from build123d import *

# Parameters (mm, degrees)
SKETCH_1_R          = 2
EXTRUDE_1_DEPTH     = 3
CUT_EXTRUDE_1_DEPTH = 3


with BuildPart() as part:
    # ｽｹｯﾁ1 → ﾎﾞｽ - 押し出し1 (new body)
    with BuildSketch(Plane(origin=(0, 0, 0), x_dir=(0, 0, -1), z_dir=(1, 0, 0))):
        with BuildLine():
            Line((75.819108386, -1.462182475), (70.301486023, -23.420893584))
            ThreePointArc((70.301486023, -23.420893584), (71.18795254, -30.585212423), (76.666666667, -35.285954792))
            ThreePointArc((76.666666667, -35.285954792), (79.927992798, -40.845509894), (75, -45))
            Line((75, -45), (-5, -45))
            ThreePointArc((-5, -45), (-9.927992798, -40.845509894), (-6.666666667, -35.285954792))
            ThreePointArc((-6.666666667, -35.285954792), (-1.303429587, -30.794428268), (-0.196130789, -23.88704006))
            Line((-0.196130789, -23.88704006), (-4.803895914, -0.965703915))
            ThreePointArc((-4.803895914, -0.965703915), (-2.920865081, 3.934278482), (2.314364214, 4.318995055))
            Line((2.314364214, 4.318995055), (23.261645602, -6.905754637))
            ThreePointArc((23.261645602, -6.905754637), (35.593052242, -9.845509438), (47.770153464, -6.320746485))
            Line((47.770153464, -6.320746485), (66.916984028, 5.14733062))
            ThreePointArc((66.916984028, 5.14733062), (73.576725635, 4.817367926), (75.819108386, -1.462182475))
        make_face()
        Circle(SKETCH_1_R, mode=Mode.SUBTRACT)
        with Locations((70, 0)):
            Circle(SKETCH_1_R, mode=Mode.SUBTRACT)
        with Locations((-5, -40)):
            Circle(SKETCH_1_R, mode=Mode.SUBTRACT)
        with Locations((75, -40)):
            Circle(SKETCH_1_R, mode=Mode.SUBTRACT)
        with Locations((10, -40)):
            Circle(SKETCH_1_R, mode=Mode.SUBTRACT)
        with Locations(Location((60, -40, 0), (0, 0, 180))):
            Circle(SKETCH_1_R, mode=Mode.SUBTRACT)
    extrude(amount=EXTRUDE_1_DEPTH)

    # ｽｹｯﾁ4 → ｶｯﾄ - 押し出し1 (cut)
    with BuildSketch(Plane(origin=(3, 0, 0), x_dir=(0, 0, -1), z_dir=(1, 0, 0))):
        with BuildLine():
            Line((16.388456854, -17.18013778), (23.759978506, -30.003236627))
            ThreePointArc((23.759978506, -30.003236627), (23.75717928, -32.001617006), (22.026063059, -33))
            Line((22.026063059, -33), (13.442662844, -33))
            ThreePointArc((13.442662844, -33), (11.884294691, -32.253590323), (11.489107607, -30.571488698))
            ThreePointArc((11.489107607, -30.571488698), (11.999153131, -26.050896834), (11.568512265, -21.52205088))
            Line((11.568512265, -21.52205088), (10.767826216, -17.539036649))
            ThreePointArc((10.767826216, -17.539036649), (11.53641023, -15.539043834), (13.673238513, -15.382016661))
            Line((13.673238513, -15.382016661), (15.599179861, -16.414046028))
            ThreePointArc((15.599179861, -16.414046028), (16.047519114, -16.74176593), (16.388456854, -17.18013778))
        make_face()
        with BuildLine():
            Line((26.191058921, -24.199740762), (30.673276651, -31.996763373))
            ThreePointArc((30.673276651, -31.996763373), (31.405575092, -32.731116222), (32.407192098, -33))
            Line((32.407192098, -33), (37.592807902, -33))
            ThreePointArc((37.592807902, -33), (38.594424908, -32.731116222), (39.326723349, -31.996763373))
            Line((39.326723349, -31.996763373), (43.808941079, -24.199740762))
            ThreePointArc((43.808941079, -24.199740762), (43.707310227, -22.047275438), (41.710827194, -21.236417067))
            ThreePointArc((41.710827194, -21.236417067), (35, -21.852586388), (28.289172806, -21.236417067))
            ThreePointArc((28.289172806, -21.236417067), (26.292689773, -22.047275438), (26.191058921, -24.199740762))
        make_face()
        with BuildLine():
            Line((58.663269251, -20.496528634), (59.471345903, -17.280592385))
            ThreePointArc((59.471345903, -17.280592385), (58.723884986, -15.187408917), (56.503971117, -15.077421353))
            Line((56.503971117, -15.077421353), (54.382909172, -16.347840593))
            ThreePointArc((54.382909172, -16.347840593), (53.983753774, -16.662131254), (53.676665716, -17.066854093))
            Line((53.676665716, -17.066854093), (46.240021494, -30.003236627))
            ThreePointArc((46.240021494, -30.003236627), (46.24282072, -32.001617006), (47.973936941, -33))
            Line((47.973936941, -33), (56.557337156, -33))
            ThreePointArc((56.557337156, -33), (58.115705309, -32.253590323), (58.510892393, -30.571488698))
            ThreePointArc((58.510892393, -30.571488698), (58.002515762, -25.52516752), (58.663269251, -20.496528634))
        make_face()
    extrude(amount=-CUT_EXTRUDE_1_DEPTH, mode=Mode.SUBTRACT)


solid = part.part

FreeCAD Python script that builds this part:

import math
import FreeCAD as App
import Part
import Sketcher
from FreeCAD import Vector
Q = App.Units.Quantity

doc = App.newDocument("Part")
body = doc.addObject("PartDesign::Body", "Body")

# Sketch on YZ plane
sketch1 = body.newObject("Sketcher::SketchObject", "Sketch")
sketch1.AttachmentSupport = (doc.getObject("YZ_Plane"), [""])
sketch1.MapMode = "FlatFace"
sketch1.addGeometry(Part.LineSegment(Vector(-23.420894, -70.301486, 0), Vector(-1.462182, -75.819108, 0)), False)
sketch1.addGeometry(Part.ArcOfCircle(Part.Circle(Vector(0, -70, 0), Vector(0, 0, 1), 6), math.radians(-104.104848), math.radians(30.919683)), False)
sketch1.addGeometry(Part.LineSegment(Vector(5.147331, -66.916984, 0), Vector(-6.320746, -47.770153, 0)), False)
sketch1.addGeometry(Part.ArcOfCircle(Part.Circle(Vector(15, -35, 0), Vector(0, 0, 1), 24.852586), math.radians(151.815052), math.radians(210.919683)), False)
sketch1.addGeometry(Part.LineSegment(Vector(-6.905755, -23.261646, 0), Vector(4.318995, -2.314364, 0)), False)
sketch1.addGeometry(Part.ArcOfCircle(Part.Circle(Vector(0, 0, 0), Vector(0, 0, 1), 4.9), math.radians(-28.184948), math.radians(101.366399)), False)
sketch1.addGeometry(Part.LineSegment(Vector(-0.965704, 4.803896, 0), Vector(-23.88704, 0.196131, 0)), False)
sketch1.addGeometry(Part.ArcOfCircle(Part.Circle(Vector(-25.857864, 10, 0), Vector(0, 0, 1), 10), math.radians(-160.528779), math.radians(-78.633601)), False)
sketch1.addGeometry(Part.ArcOfCircle(Part.Circle(Vector(-40, 5, 0), Vector(0, 0, 1), 5), math.radians(19.471221), math.radians(180)), False)
sketch1.addGeometry(Part.LineSegment(Vector(-45, 5, 0), Vector(-45, -75, 0)), False)
sketch1.addGeometry(Part.ArcOfCircle(Part.Circle(Vector(-40, -75, 0), Vector(0, 0, 1), 5), math.radians(180), math.radians(340.528779)), False)
sketch1.addGeometry(Part.ArcOfCircle(Part.Circle(Vector(-25.857864, -80, 0), Vector(0, 0, 1), 10), math.radians(75.895152), math.radians(160.528779)), False)
sketch1.addGeometry(Part.Circle(Vector(-40, -75, 0), Vector(0, 0, 1), 2), False)
sketch1.addGeometry(Part.Circle(Vector(-40, -60, 0), Vector(0, 0, 1), 2), False)
sketch1.addGeometry(Part.Circle(Vector(-40, -10, 0), Vector(0, 0, 1), 2), False)
sketch1.addGeometry(Part.Circle(Vector(-40, 5, 0), Vector(0, 0, 1), 2), False)
sketch1.addGeometry(Part.Circle(Vector(0, -70, 0), Vector(0, 0, 1), 2), False)
sketch1.addGeometry(Part.Circle(Vector(0, 0, 0), Vector(0, 0, 1), 2), False)
sketch1.addConstraint(Sketcher.Constraint("Tangent", 0, 2, 1, 1))
sketch1.addConstraint(Sketcher.Constraint("Tangent", 1, 2, 2, 1))
sketch1.addConstraint(Sketcher.Constraint("Tangent", 2, 2, 3, 2))
sketch1.addConstraint(Sketcher.Constraint("Tangent", 3, 1, 4, 1))
sketch1.addConstraint(Sketcher.Constraint("Tangent", 4, 2, 5, 1))
sketch1.addConstraint(Sketcher.Constraint("Tangent", 5, 2, 6, 1))
sketch1.addConstraint(Sketcher.Constraint("Tangent", 6, 2, 7, 2))
sketch1.addConstraint(Sketcher.Constraint("Tangent", 7, 1, 8, 1))
sketch1.addConstraint(Sketcher.Constraint("Tangent", 8, 2, 9, 1))
sketch1.addConstraint(Sketcher.Constraint("Tangent", 9, 2, 10, 1))
sketch1.addConstraint(Sketcher.Constraint("Tangent", 10, 2, 11, 2))
sketch1.addConstraint(Sketcher.Constraint("Tangent", 11, 1, 0, 1))
sketch1.addConstraint(Sketcher.Constraint("Vertical", 9))
sketch1.addConstraint(Sketcher.Constraint("Coincident", 5, 3, -1, 1))
sketch1.addConstraint(Sketcher.Constraint("Coincident", 17, 3, -1, 1))
sketch1.addConstraint(Sketcher.Constraint("Coincident", 12, 3, 10, 3))
sketch1.addConstraint(Sketcher.Constraint("Coincident", 15, 3, 8, 3))
sketch1.addConstraint(Sketcher.Constraint("Coincident", 16, 3, 1, 3))
sketch1.addConstraint(Sketcher.Constraint("Equal", 8, 10))
sketch1.addConstraint(Sketcher.Constraint("Equal", 7, 11))
sketch1.addConstraint(Sketcher.Constraint("Equal", 12, 13))
sketch1.addConstraint(Sketcher.Constraint("Equal", 13, 14))
sketch1.addConstraint(Sketcher.Constraint("Equal", 14, 15))
sketch1.addConstraint(Sketcher.Constraint("Equal", 15, 16))
sketch1.addConstraint(Sketcher.Constraint("Equal", 16, 17))
sketch1.addConstraint(Sketcher.Constraint("PointOnObject", 1, 3, -2))
sketch1.addConstraint(Sketcher.Constraint("Vertical", 7, 3, 11, 3))
sketch1.addConstraint(Sketcher.Constraint("Vertical", 12, 3, 13, 3))
sketch1.addConstraint(Sketcher.Constraint("Vertical", 13, 3, 14, 3))
sketch1.addConstraint(Sketcher.Constraint("Diameter", 12, Q("4 mm")))
sketch1.addConstraint(Sketcher.Constraint("Radius", 1, Q("6 mm")))
sketch1.addConstraint(Sketcher.Constraint("Radius", 7, Q("10 mm")))
sketch1.addConstraint(Sketcher.Constraint("Radius", 8, Q("5 mm")))
sketch1.addConstraint(Sketcher.Constraint("Radius", 5, Q("4.9 mm")))
sketch1.addConstraint(Sketcher.Constraint("DistanceY", 9, 2, 9, 1, Q("80 mm")))
sketch1.addConstraint(Sketcher.Constraint("DistanceY", 1, 3, -1, 1, Q("70 mm")))
sketch1.addConstraint(Sketcher.Constraint("DistanceX", -1, 1, 3, 3, Q("15 mm")))
sketch1.addConstraint(Sketcher.Constraint("DistanceY", 3, 3, -1, 1, Q("35 mm")))
sketch1.addConstraint(Sketcher.Constraint("DistanceY", -1, 1, 7, 3, Q("10 mm")))
sketch1.addConstraint(Sketcher.Constraint("DistanceX", 8, 3, -1, 1, Q("40 mm")))
sketch1.addConstraint(Sketcher.Constraint("DistanceY", -1, 1, 8, 3, Q("5 mm")))
sketch1.addConstraint(Sketcher.Constraint("DistanceY", 13, 3, -1, 1, Q("60 mm")))
sketch1.addConstraint(Sketcher.Constraint("DistanceY", 14, 3, -1, 1, Q("10 mm")))
sketch1.addConstraint(Sketcher.Constraint("Radius", 3, Q("24.852586 mm")))
pad1 = body.newObject("PartDesign::Pad", "Pad")
pad1.Profile = sketch1
pad1.Length = 3

# Sketch on YZ plane
sketch2 = body.newObject("Sketcher::SketchObject", "Sketch001")
sketch2.AttachmentSupport = (doc.getObject("YZ_Plane"), [""])
sketch2.MapMode = "FlatFace"
sketch2.AttachmentOffset = App.Placement(Vector(0, 0, 3), App.Rotation())
sketch2.addGeometry(Part.LineSegment(Vector(-30.003237, -23.759979, 0), Vector(-17.180138, -16.388457, 0)), False)
sketch2.addGeometry(Part.ArcOfCircle(Part.Circle(Vector(-18.176901, -14.654541, 0), Vector(0, 0, 1), 2), math.radians(-60.107009), math.radians(-28.184948)), False)
sketch2.addGeometry(Part.LineSegment(Vector(-16.414046, -15.59918, 0), Vector(-15.382017, -13.673239, 0)), False)
sketch2.addGeometry(Part.ArcOfCircle(Part.Circle(Vector(-17.144872, -12.7286, 0), Vector(0, 0, 1), 2), math.radians(-28.184948), math.radians(101.366399)), False)
sketch2.addGeometry(Part.LineSegment(Vector(-17.539037, -10.767826, 0), Vector(-21.522051, -11.568512, 0)), False)
sketch2.addGeometry(Part.ArcOfCircle(Part.Circle(Vector(-25.857864, 10, 0), Vector(0, 0, 1), 22), math.radians(-102.371862), math.radians(-78.633601)), False)
sketch2.addGeometry(Part.ArcOfCircle(Part.Circle(Vector(-31, -13.442663, 0), Vector(0, 0, 1), 2), math.radians(77.628138), math.radians(180)), False)
sketch2.addGeometry(Part.LineSegment(Vector(-33, -13.442663, 0), Vector(-33, -22.026063, 0)), False)
sketch2.addGeometry(Part.ArcOfCircle(Part.Circle(Vector(-31, -22.026063, 0), Vector(0, 0, 1), 2), math.radians(-180), math.radians(-60.107009)), False)
sketch2.addGeometry(Part.LineSegment(Vector(-24.199741, -26.191059, 0), Vector(-31.996763, -30.673277, 0)), False)
sketch2.addGeometry(Part.ArcOfCircle(Part.Circle(Vector(-31, -32.407192, 0), Vector(0, 0, 1), 2), math.radians(119.892991), math.radians(180)), False)
sketch2.addGeometry(Part.LineSegment(Vector(-33, -32.407192, 0), Vector(-33, -37.592808, 0)), False)
sketch2.addGeometry(Part.ArcOfCircle(Part.Circle(Vector(-31, -37.592808, 0), Vector(0, 0, 1), 2), math.radians(180), math.radians(240.107009)), False)
sketch2.addGeometry(Part.LineSegment(Vector(-31.996763, -39.326723, 0), Vector(-24.199741, -43.808941, 0)), False)
sketch2.addGeometry(Part.ArcOfCircle(Part.Circle(Vector(-23.202977, -42.075026, 0), Vector(0, 0, 1), 2), math.radians(-119.892991), math.radians(10.492057)), False)
sketch2.addGeometry(Part.ArcOfCircle(Part.Circle(Vector(15, -35, 0), Vector(0, 0, 1), 36.852586), math.radians(169.507943), math.radians(190.492057)), False)
sketch2.addGeometry(Part.ArcOfCircle(Part.Circle(Vector(-23.202977, -27.924974, 0), Vector(0, 0, 1), 2), math.radians(-10.492057), math.radians(119.892991)), False)
sketch2.addGeometry(Part.LineSegment(Vector(-20.496529, -58.663269, 0), Vector(-17.280592, -59.471346, 0)), False)
sketch2.addGeometry(Part.ArcOfCircle(Part.Circle(Vector(-16.793198, -57.531643, 0), Vector(0, 0, 1), 2), math.radians(-104.104848), math.radians(30.919683)), False)
sketch2.addGeometry(Part.LineSegment(Vector(-15.077421, -56.503971, 0), Vector(-16.347841, -54.382909, 0)), False)
sketch2.addGeometry(Part.ArcOfCircle(Part.Circle(Vector(-18.063617, -55.410581, 0), Vector(0, 0, 1), 2), math.radians(30.919683), math.radians(60.107009)), False)
sketch2.addGeometry(Part.LineSegment(Vector(-17.066854, -53.676666, 0), Vector(-30.003237, -46.240021, 0)), False)
sketch2.addGeometry(Part.ArcOfCircle(Part.Circle(Vector(-31, -47.973937, 0), Vector(0, 0, 1), 2), math.radians(60.107009), math.radians(180)), False)
sketch2.addGeometry(Part.LineSegment(Vector(-33, -47.973937, 0), Vector(-33, -56.557337, 0)), False)
sketch2.addGeometry(Part.ArcOfCircle(Part.Circle(Vector(-31, -56.557337, 0), Vector(0, 0, 1), 2), math.radians(-180), math.radians(-77.628138)), False)
sketch2.addGeometry(Part.ArcOfCircle(Part.Circle(Vector(-25.857864, -80, 0), Vector(0, 0, 1), 22), math.radians(75.895152), math.radians(102.371862)), False)
sketch2.addConstraint(Sketcher.Constraint("Coincident", 0, 2, 1, 1))
sketch2.addConstraint(Sketcher.Constraint("Coincident", 1, 2, 2, 1))
sketch2.addConstraint(Sketcher.Constraint("Coincident", 2, 2, 3, 1))
sketch2.addConstraint(Sketcher.Constraint("Coincident", 3, 2, 4, 1))
sketch2.addConstraint(Sketcher.Constraint("Coincident", 4, 2, 5, 2))
sketch2.addConstraint(Sketcher.Constraint("Coincident", 5, 1, 6, 1))
sketch2.addConstraint(Sketcher.Constraint("Coincident", 6, 2, 7, 1))
sketch2.addConstraint(Sketcher.Constraint("Coincident", 7, 2, 8, 1))
sketch2.addConstraint(Sketcher.Constraint("Coincident", 8, 2, 0, 1))
sketch2.addConstraint(Sketcher.Constraint("Coincident", 9, 2, 10, 1))
sketch2.addConstraint(Sketcher.Constraint("Coincident", 10, 2, 11, 1))
sketch2.addConstraint(Sketcher.Constraint("Coincident", 11, 2, 12, 1))
sketch2.addConstraint(Sketcher.Constraint("Coincident", 12, 2, 13, 1))
sketch2.addConstraint(Sketcher.Constraint("Coincident", 13, 2, 14, 1))
sketch2.addConstraint(Sketcher.Constraint("Coincident", 14, 2, 15, 2))
sketch2.addConstraint(Sketcher.Constraint("Coincident", 15, 1, 16, 1))
sketch2.addConstraint(Sketcher.Constraint("Coincident", 16, 2, 9, 1))
sketch2.addConstraint(Sketcher.Constraint("Coincident", 17, 2, 18, 1))
sketch2.addConstraint(Sketcher.Constraint("Coincident", 18, 2, 19, 1))
sketch2.addConstraint(Sketcher.Constraint("Coincident", 19, 2, 20, 1))
sketch2.addConstraint(Sketcher.Constraint("Coincident", 20, 2, 21, 1))
sketch2.addConstraint(Sketcher.Constraint("Coincident", 21, 2, 22, 1))
sketch2.addConstraint(Sketcher.Constraint("Coincident", 22, 2, 23, 1))
sketch2.addConstraint(Sketcher.Constraint("Coincident", 23, 2, 24, 1))
sketch2.addConstraint(Sketcher.Constraint("Coincident", 24, 2, 25, 2))
sketch2.addConstraint(Sketcher.Constraint("Coincident", 25, 1, 17, 1))
sketch2.addConstraint(Sketcher.Constraint("Vertical", 7))
sketch2.addConstraint(Sketcher.Constraint("Vertical", 11))
sketch2.addConstraint(Sketcher.Constraint("Vertical", 23))
sketch2.addConstraint(Sketcher.Constraint("Radius", 1, Q("2 mm")))
sketch2.addConstraint(Sketcher.Constraint("Radius", 3, Q("2 mm")))
sketch2.addConstraint(Sketcher.Constraint("Radius", 5, Q("22 mm")))
sketch2.addConstraint(Sketcher.Constraint("Radius", 6, Q("2 mm")))
sketch2.addConstraint(Sketcher.Constraint("Radius", 8, Q("2 mm")))
sketch2.addConstraint(Sketcher.Constraint("Radius", 10, Q("2 mm")))
sketch2.addConstraint(Sketcher.Constraint("Radius", 12, Q("2 mm")))
sketch2.addConstraint(Sketcher.Constraint("Radius", 14, Q("2 mm")))
sketch2.addConstraint(Sketcher.Constraint("Radius", 16, Q("2 mm")))
sketch2.addConstraint(Sketcher.Constraint("Radius", 18, Q("2 mm")))
sketch2.addConstraint(Sketcher.Constraint("Radius", 20, Q("2 mm")))
sketch2.addConstraint(Sketcher.Constraint("Radius", 22, Q("2 mm")))
sketch2.addConstraint(Sketcher.Constraint("Radius", 24, Q("2 mm")))
sketch2.addConstraint(Sketcher.Constraint("Radius", 25, Q("22 mm")))
sketch2.addConstraint(Sketcher.Constraint("DistanceY", -1, 1, 5, 3, Q("10 mm")))
sketch2.addConstraint(Sketcher.Constraint("DistanceX", 6, 3, -1, 1, Q("31 mm")))
sketch2.addConstraint(Sketcher.Constraint("DistanceX", 10, 3, -1, 1, Q("31 mm")))
sketch2.addConstraint(Sketcher.Constraint("DistanceX", -1, 1, 15, 3, Q("15 mm")))
sketch2.addConstraint(Sketcher.Constraint("DistanceY", 15, 3, -1, 1, Q("35 mm")))
sketch2.addConstraint(Sketcher.Constraint("DistanceX", 22, 3, -1, 1, Q("31 mm")))
sketch2.addConstraint(Sketcher.Constraint("DistanceY", 25, 3, -1, 1, Q("80 mm")))
sketch2.addConstraint(Sketcher.Constraint("DistanceY", 7, 2, 7, 1, Q("8.5834 mm")))
sketch2.addConstraint(Sketcher.Constraint("DistanceY", 23, 2, 23, 1, Q("8.5834 mm")))
sketch2.addConstraint(Sketcher.Constraint("Radius", 15, Q("36.852586 mm")))
sketch2.addConstraint(Sketcher.Constraint("DistanceX", 1, 3, -1, 1, Q("18.176901 mm")))
sketch2.addConstraint(Sketcher.Constraint("DistanceY", 3, 3, -1, 1, Q("12.7286 mm")))
sketch2.addConstraint(Sketcher.Constraint("DistanceX", 18, 3, -1, 1, Q("16.793198 mm")))
sketch2.addConstraint(Sketcher.Constraint("DistanceY", 8, 3, 6, 3, Q("8.5834 mm")))
sketch2.addConstraint(Sketcher.Constraint("DistanceY", 24, 3, 22, 3, Q("8.5834 mm")))
sketch2.addConstraint(Sketcher.Constraint("DistanceX", 3, 2, 0, 2, Q("0.358899 mm")))
sketch2.addConstraint(Sketcher.Constraint("DistanceY", 8, 3, 6, 2, Q("8.5834 mm")))
sketch2.addConstraint(Sketcher.Constraint("DistanceY", 9, 2, 8, 2, Q("6.913298 mm")))
sketch2.addConstraint(Sketcher.Constraint("DistanceY", 14, 3, 14, 2, Q("0.364198 mm")))
sketch2.addConstraint(Sketcher.Constraint("DistanceY", 15, 1, 16, 3, Q("0.364198 mm")))
sketch2.addConstraint(Sketcher.Constraint("DistanceX", 13, 2, 19, 2, Q("7.8519 mm")))
sketch2.addConstraint(Sketcher.Constraint("DistanceY", 21, 2, 12, 2, Q("6.913298 mm")))
sketch2.addConstraint(Sketcher.Constraint("DistanceY", 24, 3, 22, 2, Q("8.5834 mm")))
sketch2.addConstraint(Sketcher.Constraint("DistanceY", 25, 1, 18, 2, Q("2.159298 mm")))
sketch2.addConstraint(Sketcher.Constraint("Distance", 19, Q("2.472422 mm")))
sketch2.addConstraint(Sketcher.Constraint("DistanceY", 11, 2, 11, 1, Q("5.185616 mm")))
sketch2.addConstraint(Sketcher.Constraint("DistanceY", 1, 3, -1, 1, Q("14.654541 mm")))
sketch2.addConstraint(Sketcher.Constraint("DistanceX", 3, 3, -1, 1, Q("17.144872 mm")))
sketch2.addConstraint(Sketcher.Constraint("DistanceY", 20, 3, -1, 1, Q("55.410581 mm")))
sketch2.addConstraint(Sketcher.Constraint("DistanceY", 1, 2, -1, 1, Q("15.59918 mm")))
sketch2.addConstraint(Sketcher.Constraint("DistanceY", 2, 2, -1, 1, Q("13.673239 mm")))
sketch2.addConstraint(Sketcher.Constraint("DistanceX", 4, 2, -1, 1, Q("21.522051 mm")))
sketch2.addConstraint(Sketcher.Constraint("DistanceX", 5, 1, -1, 1, Q("30.571489 mm")))
sketch2.addConstraint(Sketcher.Constraint("DistanceY", 8, 2, -1, 1, Q("23.759979 mm")))
sketch2.addConstraint(Sketcher.Constraint("DistanceX", 13, 2, -1, 1, Q("24.199741 mm")))
sketch2.addConstraint(Sketcher.Constraint("DistanceY", 13, 2, -1, 1, Q("43.808941 mm")))
sketch2.addConstraint(Sketcher.Constraint("DistanceX", 16, 2, -1, 1, Q("24.199741 mm")))
sketch2.addConstraint(Sketcher.Constraint("DistanceY", 16, 2, -1, 1, Q("26.191059 mm")))
sketch2.addConstraint(Sketcher.Constraint("DistanceX", 18, 2, -1, 1, Q("15.077421 mm")))
sketch2.addConstraint(Sketcher.Constraint("DistanceY", 18, 2, -1, 1, Q("56.503971 mm")))
sketch2.addConstraint(Sketcher.Constraint("DistanceY", 21, 2, -1, 1, Q("46.240021 mm")))
sketch2.addConstraint(Sketcher.Constraint("DistanceX", 24, 2, -1, 1, Q("30.571489 mm")))
sketch2.addConstraint(Sketcher.Constraint("DistanceX", 25, 1, -1, 1, Q("20.496529 mm")))
sketch2.addConstraint(Sketcher.Constraint("DistanceY", 1, 3, 6, 3, Q("1.211879 mm")))
sketch2.addConstraint(Sketcher.Constraint("DistanceY", 10, 3, 8, 3, Q("10.381129 mm")))
sketch2.addConstraint(Sketcher.Constraint("DistanceY", 22, 3, 12, 3, Q("10.381129 mm")))
sketch2.addConstraint(Sketcher.Constraint("DistanceX", 16, 3, 0, 2, Q("6.02284 mm")))
sketch2.addConstraint(Sketcher.Constraint("DistanceY", 10, 2, 7, 2, Q("10.381129 mm")))
sketch2.addConstraint(Sketcher.Constraint("DistanceY", 17, 2, 24, 3, Q("2.914009 mm")))
sketch2.addConstraint(Sketcher.Constraint("DistanceX", 17, 2, 20, 2, Q("0.213738 mm")))
pocket1 = body.newObject("PartDesign::Pocket", "Pocket")
pocket1.Profile = sketch2
pocket1.Length = 3

doc.recompute()
